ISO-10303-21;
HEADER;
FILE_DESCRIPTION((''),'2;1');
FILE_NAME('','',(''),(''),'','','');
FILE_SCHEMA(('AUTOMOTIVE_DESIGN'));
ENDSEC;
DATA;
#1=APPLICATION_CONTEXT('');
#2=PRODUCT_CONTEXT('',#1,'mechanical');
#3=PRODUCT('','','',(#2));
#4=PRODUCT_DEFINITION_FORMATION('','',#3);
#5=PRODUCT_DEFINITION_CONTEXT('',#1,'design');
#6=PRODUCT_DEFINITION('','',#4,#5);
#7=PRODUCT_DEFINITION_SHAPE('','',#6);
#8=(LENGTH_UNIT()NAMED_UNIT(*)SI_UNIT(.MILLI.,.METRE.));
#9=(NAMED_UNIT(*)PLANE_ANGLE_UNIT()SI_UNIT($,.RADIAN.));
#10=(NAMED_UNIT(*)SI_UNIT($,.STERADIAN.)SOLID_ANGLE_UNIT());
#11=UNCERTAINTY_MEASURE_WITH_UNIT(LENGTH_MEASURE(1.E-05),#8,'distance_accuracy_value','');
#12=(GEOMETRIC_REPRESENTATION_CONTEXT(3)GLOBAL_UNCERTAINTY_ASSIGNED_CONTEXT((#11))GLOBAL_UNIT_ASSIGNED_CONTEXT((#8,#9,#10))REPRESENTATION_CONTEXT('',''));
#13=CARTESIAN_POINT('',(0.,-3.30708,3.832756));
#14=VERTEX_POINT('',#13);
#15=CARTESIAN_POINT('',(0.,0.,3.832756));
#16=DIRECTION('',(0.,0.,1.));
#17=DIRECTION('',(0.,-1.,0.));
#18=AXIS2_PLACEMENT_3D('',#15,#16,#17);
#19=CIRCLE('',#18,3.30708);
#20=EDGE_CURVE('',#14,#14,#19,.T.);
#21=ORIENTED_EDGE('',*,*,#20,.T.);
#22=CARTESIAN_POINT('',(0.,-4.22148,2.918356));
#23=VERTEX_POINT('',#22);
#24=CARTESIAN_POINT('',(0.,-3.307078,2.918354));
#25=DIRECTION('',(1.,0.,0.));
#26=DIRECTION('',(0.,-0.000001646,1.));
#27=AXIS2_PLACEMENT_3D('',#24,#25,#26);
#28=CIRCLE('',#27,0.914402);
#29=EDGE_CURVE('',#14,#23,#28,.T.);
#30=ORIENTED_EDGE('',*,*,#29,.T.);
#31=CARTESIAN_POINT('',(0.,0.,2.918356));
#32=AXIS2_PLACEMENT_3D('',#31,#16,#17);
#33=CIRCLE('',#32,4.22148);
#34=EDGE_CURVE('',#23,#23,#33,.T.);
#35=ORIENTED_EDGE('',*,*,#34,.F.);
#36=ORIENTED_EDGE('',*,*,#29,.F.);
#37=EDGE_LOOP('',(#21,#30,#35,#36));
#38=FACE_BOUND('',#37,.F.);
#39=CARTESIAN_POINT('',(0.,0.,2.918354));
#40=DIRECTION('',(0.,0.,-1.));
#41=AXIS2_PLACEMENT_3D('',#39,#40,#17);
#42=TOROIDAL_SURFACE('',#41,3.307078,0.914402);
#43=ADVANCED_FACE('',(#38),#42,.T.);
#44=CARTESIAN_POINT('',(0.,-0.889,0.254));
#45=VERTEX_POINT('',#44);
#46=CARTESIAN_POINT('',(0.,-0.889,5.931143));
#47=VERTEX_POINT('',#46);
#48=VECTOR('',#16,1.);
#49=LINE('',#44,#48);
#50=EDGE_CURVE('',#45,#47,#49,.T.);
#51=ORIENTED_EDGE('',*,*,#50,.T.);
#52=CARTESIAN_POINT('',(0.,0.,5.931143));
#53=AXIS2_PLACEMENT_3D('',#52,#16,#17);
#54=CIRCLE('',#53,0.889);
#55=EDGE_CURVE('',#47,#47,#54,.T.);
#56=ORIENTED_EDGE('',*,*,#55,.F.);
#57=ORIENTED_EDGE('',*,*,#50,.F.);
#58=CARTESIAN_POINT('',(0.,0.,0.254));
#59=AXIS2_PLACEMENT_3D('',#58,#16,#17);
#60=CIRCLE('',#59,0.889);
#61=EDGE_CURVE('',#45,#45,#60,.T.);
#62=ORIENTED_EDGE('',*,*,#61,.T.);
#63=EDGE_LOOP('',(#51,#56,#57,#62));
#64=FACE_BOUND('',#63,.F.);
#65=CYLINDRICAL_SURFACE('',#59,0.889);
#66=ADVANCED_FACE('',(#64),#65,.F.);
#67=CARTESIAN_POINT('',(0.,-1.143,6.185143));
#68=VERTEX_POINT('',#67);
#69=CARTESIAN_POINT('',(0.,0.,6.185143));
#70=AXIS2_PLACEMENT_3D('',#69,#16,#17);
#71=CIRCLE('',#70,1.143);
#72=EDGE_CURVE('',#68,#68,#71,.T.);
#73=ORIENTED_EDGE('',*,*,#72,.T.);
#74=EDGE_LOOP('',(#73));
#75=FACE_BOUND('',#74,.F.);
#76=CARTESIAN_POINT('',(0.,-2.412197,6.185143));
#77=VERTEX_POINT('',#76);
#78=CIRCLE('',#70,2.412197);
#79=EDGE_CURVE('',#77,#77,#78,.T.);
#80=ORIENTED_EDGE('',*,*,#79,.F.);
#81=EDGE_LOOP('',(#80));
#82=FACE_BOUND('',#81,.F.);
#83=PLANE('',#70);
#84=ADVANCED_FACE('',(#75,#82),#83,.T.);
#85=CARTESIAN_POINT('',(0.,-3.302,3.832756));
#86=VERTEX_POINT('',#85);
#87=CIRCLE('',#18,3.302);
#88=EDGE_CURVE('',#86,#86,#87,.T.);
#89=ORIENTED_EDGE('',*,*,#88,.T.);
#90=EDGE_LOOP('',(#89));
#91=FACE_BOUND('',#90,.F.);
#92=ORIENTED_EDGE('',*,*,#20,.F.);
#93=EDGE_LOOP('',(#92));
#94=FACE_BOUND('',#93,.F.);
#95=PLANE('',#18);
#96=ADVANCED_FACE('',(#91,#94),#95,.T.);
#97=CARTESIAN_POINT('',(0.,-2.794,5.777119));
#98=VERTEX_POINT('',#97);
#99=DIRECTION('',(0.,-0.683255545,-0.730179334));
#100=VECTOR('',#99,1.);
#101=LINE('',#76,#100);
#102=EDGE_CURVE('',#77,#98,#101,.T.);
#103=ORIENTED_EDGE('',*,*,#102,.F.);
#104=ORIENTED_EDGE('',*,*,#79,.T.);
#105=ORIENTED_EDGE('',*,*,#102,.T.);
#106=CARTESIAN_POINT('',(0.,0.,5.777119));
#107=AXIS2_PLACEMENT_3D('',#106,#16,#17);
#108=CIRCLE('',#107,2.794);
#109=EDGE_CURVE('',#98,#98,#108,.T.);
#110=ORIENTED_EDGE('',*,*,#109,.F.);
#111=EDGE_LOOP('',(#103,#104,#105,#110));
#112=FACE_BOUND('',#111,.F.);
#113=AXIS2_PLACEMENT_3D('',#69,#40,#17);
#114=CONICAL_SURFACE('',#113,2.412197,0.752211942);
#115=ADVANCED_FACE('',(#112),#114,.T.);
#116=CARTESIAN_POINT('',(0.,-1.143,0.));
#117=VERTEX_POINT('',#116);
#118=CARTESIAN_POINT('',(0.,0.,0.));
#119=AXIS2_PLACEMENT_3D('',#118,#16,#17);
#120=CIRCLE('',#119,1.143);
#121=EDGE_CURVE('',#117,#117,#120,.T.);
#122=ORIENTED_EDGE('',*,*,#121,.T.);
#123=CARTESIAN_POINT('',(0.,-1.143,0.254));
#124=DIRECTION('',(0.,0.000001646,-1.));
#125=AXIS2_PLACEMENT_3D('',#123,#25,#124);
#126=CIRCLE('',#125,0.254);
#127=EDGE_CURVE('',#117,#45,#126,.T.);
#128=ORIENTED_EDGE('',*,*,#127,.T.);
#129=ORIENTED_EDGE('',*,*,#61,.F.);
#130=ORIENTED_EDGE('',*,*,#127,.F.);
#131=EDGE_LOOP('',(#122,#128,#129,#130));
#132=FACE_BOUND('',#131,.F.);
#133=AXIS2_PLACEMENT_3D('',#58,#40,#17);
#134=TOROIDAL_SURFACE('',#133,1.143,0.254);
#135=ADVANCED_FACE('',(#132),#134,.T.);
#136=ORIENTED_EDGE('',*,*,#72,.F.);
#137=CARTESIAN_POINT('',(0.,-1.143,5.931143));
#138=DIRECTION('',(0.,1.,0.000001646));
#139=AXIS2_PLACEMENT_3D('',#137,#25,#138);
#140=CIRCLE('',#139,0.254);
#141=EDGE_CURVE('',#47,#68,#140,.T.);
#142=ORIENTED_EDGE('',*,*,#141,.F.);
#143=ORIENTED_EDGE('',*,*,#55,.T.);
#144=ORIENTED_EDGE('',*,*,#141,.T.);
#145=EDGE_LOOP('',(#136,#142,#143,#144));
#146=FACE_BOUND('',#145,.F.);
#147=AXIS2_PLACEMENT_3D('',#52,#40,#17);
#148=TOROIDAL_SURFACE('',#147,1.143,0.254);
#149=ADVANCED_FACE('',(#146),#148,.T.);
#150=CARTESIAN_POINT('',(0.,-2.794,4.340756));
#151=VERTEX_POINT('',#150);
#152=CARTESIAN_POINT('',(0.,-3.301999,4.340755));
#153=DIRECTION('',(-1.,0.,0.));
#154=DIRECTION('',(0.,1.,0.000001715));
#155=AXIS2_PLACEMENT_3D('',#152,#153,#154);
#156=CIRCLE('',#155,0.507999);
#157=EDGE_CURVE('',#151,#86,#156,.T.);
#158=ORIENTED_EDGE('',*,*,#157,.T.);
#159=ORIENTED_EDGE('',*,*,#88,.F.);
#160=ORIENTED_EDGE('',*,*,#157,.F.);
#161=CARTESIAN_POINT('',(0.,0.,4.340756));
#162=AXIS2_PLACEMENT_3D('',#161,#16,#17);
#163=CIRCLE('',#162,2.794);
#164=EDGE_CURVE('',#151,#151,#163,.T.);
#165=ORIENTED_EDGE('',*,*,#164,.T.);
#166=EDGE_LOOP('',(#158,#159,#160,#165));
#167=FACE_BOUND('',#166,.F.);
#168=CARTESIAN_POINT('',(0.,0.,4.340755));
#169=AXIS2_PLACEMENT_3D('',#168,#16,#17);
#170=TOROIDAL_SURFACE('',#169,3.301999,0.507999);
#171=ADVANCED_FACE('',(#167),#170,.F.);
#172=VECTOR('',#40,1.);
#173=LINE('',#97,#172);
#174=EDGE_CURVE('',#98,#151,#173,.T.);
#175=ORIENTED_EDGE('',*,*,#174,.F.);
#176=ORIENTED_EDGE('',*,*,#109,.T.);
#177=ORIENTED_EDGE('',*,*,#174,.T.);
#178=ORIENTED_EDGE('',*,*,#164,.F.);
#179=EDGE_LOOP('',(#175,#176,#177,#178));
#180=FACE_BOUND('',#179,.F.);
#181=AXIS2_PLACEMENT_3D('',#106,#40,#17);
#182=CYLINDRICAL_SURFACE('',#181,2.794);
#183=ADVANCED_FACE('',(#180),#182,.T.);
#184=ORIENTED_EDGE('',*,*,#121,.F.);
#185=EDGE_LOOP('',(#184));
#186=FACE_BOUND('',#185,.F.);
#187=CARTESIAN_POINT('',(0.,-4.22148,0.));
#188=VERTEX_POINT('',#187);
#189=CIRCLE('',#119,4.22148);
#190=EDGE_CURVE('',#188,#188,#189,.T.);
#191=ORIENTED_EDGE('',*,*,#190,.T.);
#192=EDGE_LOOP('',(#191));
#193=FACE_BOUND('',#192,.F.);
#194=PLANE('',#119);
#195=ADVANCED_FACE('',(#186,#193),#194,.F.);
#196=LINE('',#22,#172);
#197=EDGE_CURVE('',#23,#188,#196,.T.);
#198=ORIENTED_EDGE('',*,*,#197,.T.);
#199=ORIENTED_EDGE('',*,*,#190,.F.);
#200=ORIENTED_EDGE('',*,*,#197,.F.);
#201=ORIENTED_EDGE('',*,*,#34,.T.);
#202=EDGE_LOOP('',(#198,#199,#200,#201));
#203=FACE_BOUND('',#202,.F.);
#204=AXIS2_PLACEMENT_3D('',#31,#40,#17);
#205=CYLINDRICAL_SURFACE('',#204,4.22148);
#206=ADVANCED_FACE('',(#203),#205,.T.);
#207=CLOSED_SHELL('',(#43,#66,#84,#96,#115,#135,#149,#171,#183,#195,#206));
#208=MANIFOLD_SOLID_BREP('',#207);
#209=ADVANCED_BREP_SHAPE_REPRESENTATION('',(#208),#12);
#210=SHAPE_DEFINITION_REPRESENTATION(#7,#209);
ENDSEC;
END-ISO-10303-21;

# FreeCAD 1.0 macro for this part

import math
import FreeCAD as App
import Part
import Sketcher

V = App.Vector
Q = App.Units.Quantity

doc = App.newDocument("Part")
body = doc.addObject("PartDesign::Body", "Body")

# Sketch on YZ plane
sketch1 = body.newObject("Sketcher::SketchObject", "Sketch")
sketch1.AttachmentSupport = (doc.getObject("YZ_Plane"), [""])
sketch1.MapMode = "FlatFace"
sketch1.addGeometry([
    Part.ArcOfCircle(Part.Circle(V(-1.143, 0.254, 0), V(0, 0, 1), 0.254), math.radians(-89.999906), math.radians(-0.000094)),  # 0
    Part.LineSegment(V(-0.889, 0.254, 0), V(-0.889, 5.931143, 0)),  # 1
    Part.ArcOfCircle(Part.Circle(V(-1.143, 5.931143, 0), V(0, 0, 1), 0.254), math.radians(0.000094), math.radians(89.999906)),  # 2
    Part.LineSegment(V(-1.143, 6.185143, 0), V(-2.412197, 6.185143, 0)),  # 3
    Part.LineSegment(V(-2.412197, 6.185143, 0), V(-2.794, 5.777119, 0)),  # 4
    Part.LineSegment(V(-2.794, 5.777119, 0), V(-2.794, 4.340756, 0)),  # 5
    Part.ArcOfCircle(Part.Circle(V(-3.301999, 4.340755, 0), V(0, 0, 1), 0.507999), math.radians(-90.000098), math.radians(0.000098)),  # 6
    Part.LineSegment(V(-3.302, 3.832756, 0), V(-3.30708, 3.832756, 0)),  # 7
    Part.ArcOfCircle(Part.Circle(V(-3.307078, 2.918354, 0), V(0, 0, 1), 0.914402), math.radians(90.000094), math.radians(179.999906)),  # 8
    Part.LineSegment(V(-4.22148, 2.918356, 0), V(-4.22148, 0, 0)),  # 9
    Part.LineSegment(V(-4.22148, 0, 0), V(-1.143, 0, 0)),  # 10
], False)
sketch1.addConstraint([
    Sketcher.Constraint("Tangent", 0, 2, 1, 1),
    Sketcher.Constraint("Tangent", 1, 2, 2, 1),
    Sketcher.Constraint("Tangent", 2, 2, 3, 1),
    Sketcher.Constraint("Coincident", 3, 2, 4, 1),
    Sketcher.Constraint("Coincident", 4, 2, 5, 1),
    Sketcher.Constraint("Tangent", 5, 2, 6, 2),
    Sketcher.Constraint("Tangent", 6, 1, 7, 1),
    Sketcher.Constraint("Tangent", 7, 2, 8, 1),
    Sketcher.Constraint("Tangent", 8, 2, 9, 1),
    Sketcher.Constraint("Coincident", 9, 2, 10, 1),
    Sketcher.Constraint("Tangent", 10, 2, 0, 1),
    Sketcher.Constraint("Vertical", 1),
    Sketcher.Constraint("Horizontal", 3),
    Sketcher.Constraint("Vertical", 5),
    Sketcher.Constraint("Horizontal", 7),
    Sketcher.Constraint("Vertical", 9),
    Sketcher.Constraint("Horizontal", 10),
    Sketcher.Constraint("Equal", 0, 2),
    Sketcher.Constraint("PointOnObject", 9, 2, -1),
    Sketcher.Constraint("Radius", 0, Q("0.01 in")),
    Sketcher.Constraint("Radius", 6, Q("0.02 in")),
    Sketcher.Constraint("Radius", 8, Q("0.0360001 in")),
    Sketcher.Constraint("DistanceX", 6, 3, -1, 1, Q("0.13 in")),
    Sketcher.Constraint("Distance", 4, Q("0.022 in")),
    Sketcher.Constraint("DistanceX", 7, 2, 7, 1, Q("0.0002 in")),
    Sketcher.Constraint("DistanceX", 10, 1, 10, 2, Q("0.1212 in")),
    Sketcher.Constraint("DistanceX", 3, 2, 3, 1, 1.269197),
    Sketcher.Constraint("DistanceY", 1, 1, 1, 2, 5.677143),
    Sketcher.Constraint("DistanceY", 5, 2, 5, 1, 1.436363),
])
revolution = body.newObject("PartDesign::Revolution", "Revolution")
revolution.Profile = sketch1
revolution.ReferenceAxis = (sketch1, ["V_Axis"])
revolution.Angle = 360

doc.recompute()
